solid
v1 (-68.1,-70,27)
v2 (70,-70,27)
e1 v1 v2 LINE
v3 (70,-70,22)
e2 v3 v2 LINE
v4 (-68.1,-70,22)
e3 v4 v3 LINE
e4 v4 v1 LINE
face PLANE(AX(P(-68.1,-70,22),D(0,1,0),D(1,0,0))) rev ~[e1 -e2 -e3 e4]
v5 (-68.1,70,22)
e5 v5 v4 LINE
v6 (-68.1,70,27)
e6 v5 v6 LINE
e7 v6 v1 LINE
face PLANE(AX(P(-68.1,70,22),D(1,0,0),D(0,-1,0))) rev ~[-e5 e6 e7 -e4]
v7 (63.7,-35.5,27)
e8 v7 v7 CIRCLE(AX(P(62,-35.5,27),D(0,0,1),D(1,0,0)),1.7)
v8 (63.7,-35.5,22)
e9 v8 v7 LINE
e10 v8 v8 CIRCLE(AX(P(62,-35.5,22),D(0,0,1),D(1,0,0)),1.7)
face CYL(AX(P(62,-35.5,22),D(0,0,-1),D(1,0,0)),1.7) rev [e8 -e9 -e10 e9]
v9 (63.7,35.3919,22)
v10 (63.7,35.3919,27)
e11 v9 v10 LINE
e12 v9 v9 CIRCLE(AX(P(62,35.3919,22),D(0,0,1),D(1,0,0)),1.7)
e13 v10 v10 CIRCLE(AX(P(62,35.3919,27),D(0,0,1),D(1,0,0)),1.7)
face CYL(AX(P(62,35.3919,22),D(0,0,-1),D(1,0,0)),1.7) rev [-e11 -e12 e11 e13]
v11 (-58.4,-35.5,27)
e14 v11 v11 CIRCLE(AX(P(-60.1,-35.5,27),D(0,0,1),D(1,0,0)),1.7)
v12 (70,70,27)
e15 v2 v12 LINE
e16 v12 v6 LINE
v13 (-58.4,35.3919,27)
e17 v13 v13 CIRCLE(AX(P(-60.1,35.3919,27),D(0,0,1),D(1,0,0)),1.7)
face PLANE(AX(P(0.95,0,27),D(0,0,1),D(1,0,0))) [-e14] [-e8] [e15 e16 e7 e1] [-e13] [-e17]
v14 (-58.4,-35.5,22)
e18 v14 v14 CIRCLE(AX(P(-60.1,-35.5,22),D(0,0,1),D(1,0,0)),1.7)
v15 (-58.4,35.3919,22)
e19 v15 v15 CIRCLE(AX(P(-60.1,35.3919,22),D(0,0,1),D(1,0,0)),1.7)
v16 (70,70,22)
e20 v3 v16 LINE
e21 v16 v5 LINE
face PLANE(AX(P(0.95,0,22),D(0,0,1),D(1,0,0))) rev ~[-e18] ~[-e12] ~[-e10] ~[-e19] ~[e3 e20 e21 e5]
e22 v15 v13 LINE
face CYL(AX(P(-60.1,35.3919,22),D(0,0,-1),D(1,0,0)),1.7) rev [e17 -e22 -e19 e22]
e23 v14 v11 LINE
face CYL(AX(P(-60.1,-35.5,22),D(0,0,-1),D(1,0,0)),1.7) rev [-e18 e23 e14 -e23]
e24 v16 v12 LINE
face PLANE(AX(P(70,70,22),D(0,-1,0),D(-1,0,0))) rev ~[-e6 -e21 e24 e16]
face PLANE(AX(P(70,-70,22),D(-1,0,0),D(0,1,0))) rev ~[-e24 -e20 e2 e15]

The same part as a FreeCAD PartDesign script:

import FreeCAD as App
import Part
import Sketcher
Q = App.Units.Quantity


def add_polygon(sketch, points):
    """Adds a closed chain of lines whose ends are joined by coincident constraints."""
    first, n = sketch.GeometryCount, len(points)
    for a, b in zip(points, points[1:] + points[:1]):
        sketch.addGeometry(Part.LineSegment(App.Vector(*a, 0), App.Vector(*b, 0)), False)
    for i in range(n):
        sketch.addConstraint(Sketcher.Constraint("Coincident", first + i, 2, first + (i + 1) % n, 1))

doc = App.newDocument("Part")
params = doc.addObject("Spreadsheet::Sheet", "Params")
for row, (alias, value) in enumerate([
    ("sketch1_diameter", "3.4 mm"),
    ("sketch1_height", "140 mm"),
    ("sketch1_width", "138.1 mm"),
    ("pad1_length", "5 mm"),
], start=1):
    params.set(f"A{row}", alias)
    params.set(f"B{row}", "=" + value)
    params.setAlias(f"B{row}", alias)

body = doc.addObject("PartDesign::Body", "Body")

# Sketch on XY plane
sketch1 = body.newObject("Sketcher::SketchObject", "Sketch")
sketch1.AttachmentSupport = (doc.getObject("XY_Plane"), [""])
sketch1.MapMode = "FlatFace"
sketch1.AttachmentOffset = App.Placement(App.Vector(0, 0, 22), App.Rotation())
add_polygon(sketch1, [(-68.1, 70), (-68.1, -70), (70, -70), (70, 70)])  # lines 0-3
sketch1.addGeometry(Part.Circle(App.Vector(-60.1, -35.5, 0), App.Vector(0, 0, 1), 1.7), False)  # 4
sketch1.addGeometry(Part.Circle(App.Vector(62, -35.5, 0), App.Vector(0, 0, 1), 1.7), False)  # 5
sketch1.addGeometry(Part.Circle(App.Vector(-60.1, 35.3919, 0), App.Vector(0, 0, 1), 1.7), False)  # 6
sketch1.addGeometry(Part.Circle(App.Vector(62, 35.3919, 0), App.Vector(0, 0, 1), 1.7), False)  # 7
sketch1.addConstraint(Sketcher.Constraint("Vertical", 0))
sketch1.addConstraint(Sketcher.Constraint("Horizontal", 1))
sketch1.addConstraint(Sketcher.Constraint("Vertical", 2))
sketch1.addConstraint(Sketcher.Constraint("Horizontal", 3))
sketch1.addConstraint(Sketcher.Constraint("Equal", 4, 5))
sketch1.addConstraint(Sketcher.Constraint("Equal", 5, 6))
sketch1.addConstraint(Sketcher.Constraint("Equal", 6, 7))
sketch1.addConstraint(Sketcher.Constraint("Horizontal", 4, 3, 5, 3))
sketch1.addConstraint(Sketcher.Constraint("Horizontal", 6, 3, 7, 3))
sketch1.addConstraint(Sketcher.Constraint("Vertical", 4, 3, 6, 3))
sketch1.addConstraint(Sketcher.Constraint("Vertical", 5, 3, 7, 3))
sketch1.addConstraint(Sketcher.Constraint("DistanceX", -1, 1, 5, 3, Q("62 mm")))
sketch1.addConstraint(Sketcher.Constraint("Diameter", 4, Q("3.4 mm")))
sketch1.addConstraint(Sketcher.Constraint("DistanceX", 0, 2, -1, 1, Q("68.1 mm")))
sketch1.addConstraint(Sketcher.Constraint("DistanceY", 0, 2, 0, 1, Q("140 mm")))
sketch1.addConstraint(Sketcher.Constraint("DistanceX", 1, 1, 1, 2, Q("138.1 mm")))
sketch1.addConstraint(Sketcher.Constraint("DistanceY", 0, 2, -1, 1, Q("70 mm")))
sketch1.addConstraint(Sketcher.Constraint("DistanceX", 0, 2, 4, 3, Q("8 mm")))
sketch1.addConstraint(Sketcher.Constraint("DistanceY", 4, 3, -1, 1, Q("35.5 mm")))
sketch1.addConstraint(Sketcher.Constraint("DistanceY", -1, 1, 6, 3, Q("35.392 mm")))
sketch1.setExpression("Constraints[16]", "Params.sketch1_diameter")
sketch1.setExpression("Constraints[18]", "Params.sketch1_height")
sketch1.setExpression("Constraints[19]", "Params.sketch1_width")
pad1 = body.newObject("PartDesign::Pad", "Pad")
pad1.Profile = sketch1
pad1.setExpression("Length", "Params.pad1_length")

doc.recompute()
